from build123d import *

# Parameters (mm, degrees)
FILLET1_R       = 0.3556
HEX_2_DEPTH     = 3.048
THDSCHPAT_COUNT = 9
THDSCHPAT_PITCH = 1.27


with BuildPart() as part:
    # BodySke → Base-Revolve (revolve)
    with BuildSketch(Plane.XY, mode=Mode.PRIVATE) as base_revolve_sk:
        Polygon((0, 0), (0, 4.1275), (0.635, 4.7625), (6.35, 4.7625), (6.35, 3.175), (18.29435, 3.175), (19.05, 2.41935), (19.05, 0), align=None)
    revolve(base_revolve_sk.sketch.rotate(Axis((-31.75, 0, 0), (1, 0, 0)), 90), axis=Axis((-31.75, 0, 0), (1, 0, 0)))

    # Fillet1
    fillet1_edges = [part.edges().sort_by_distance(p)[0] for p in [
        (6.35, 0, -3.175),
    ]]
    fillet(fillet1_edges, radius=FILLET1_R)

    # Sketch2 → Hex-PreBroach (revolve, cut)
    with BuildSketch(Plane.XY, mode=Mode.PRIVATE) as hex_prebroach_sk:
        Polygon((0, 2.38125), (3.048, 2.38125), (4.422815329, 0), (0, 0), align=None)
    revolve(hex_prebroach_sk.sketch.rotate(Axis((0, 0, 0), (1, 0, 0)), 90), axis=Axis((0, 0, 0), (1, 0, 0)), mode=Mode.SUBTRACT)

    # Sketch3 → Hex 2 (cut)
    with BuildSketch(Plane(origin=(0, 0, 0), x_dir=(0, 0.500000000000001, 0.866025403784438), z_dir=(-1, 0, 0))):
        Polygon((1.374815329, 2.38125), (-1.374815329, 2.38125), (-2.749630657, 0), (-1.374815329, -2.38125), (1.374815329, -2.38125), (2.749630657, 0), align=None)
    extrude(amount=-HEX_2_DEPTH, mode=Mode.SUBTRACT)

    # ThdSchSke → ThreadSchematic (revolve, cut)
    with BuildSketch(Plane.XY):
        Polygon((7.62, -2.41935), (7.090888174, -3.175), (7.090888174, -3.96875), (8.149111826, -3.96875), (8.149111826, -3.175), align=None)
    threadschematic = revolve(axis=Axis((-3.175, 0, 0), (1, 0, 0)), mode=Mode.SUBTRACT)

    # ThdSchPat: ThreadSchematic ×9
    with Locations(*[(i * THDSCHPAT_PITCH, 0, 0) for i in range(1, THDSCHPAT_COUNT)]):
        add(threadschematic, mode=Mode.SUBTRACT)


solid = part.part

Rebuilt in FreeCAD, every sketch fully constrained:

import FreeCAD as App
import Part
import Sketcher
from FreeCAD import Vector
Q = App.Units.Quantity


def edges_at(feature, points):
    """Names of the edges that pass closest to the given points."""
    edges = feature.Shape.Edges
    near = lambda p: min(range(len(edges)), key=lambda i: edges[i].distToShape(Part.Vertex(*p))[0])
    return sorted({f"Edge{near(p) + 1}" for p in points})

doc = App.newDocument("Part")
body = doc.addObject("PartDesign::Body", "Body")

# Sketch on XY plane
sketch1 = body.newObject("Sketcher::SketchObject", "Sketch")
sketch1.AttachmentSupport = (doc.getObject("XY_Plane"), [""])
sketch1.MapMode = "FlatFace"
sketch1.addGeometry([
    Part.LineSegment(Vector(0, 4.1, 0), Vector(0, 0, 0)),  # 0
    Part.LineSegment(Vector(0, 0, 0), Vector(19.1, 0, 0)),  # 1
    Part.LineSegment(Vector(19.1, 0, 0), Vector(19.1, 2.4, 0)),  # 2
    Part.LineSegment(Vector(19.1, 2.4, 0), Vector(18.3, 3.2, 0)),  # 3
    Part.LineSegment(Vector(18.3, 3.2, 0), Vector(6.3, 3.2, 0)),  # 4
    Part.LineSegment(Vector(6.3, 3.2, 0), Vector(6.3, 4.8, 0)),  # 5
    Part.LineSegment(Vector(6.3, 4.8, 0), Vector(0.6, 4.8, 0)),  # 6
    Part.LineSegment(Vector(0.6, 4.8, 0), Vector(0, 4.1, 0)),  # 7
], False)
sketch1.addConstraint([
    Sketcher.Constraint("Coincident", 0, 2, 1, 1),
    Sketcher.Constraint("Coincident", 1, 2, 2, 1),
    Sketcher.Constraint("Coincident", 2, 2, 3, 1),
    Sketcher.Constraint("Coincident", 3, 2, 4, 1),
    Sketcher.Constraint("Coincident", 4, 2, 5, 1),
    Sketcher.Constraint("Coincident", 5, 2, 6, 1),
    Sketcher.Constraint("Coincident", 6, 2, 7, 1),
    Sketcher.Constraint("Coincident", 7, 2, 0, 1),
    Sketcher.Constraint("Vertical", 0),
    Sketcher.Constraint("Horizontal", 1),
    Sketcher.Constraint("Vertical", 2),
    Sketcher.Constraint("Horizontal", 4),
    Sketcher.Constraint("Vertical", 5),
    Sketcher.Constraint("Horizontal", 6),
    Sketcher.Constraint("Coincident", 0, 2, -1, 1),
    Sketcher.Constraint("Perpendicular", 3, 7),
    Sketcher.Constraint("Angle", 3, Q("135 deg")),
    Sketcher.Constraint("DistanceX", 1, 1, 1, 2, Q("0.75 in")),
    Sketcher.Constraint("DistanceX", 4, 2, 2, 2, Q("0.5 in")),
    Sketcher.Constraint("DistanceX", 6, 2, 6, 1, Q("0.225 in")),
    Sketcher.Constraint("DistanceY", 5, 1, 5, 2, Q("0.0625 in")),
    Sketcher.Constraint("DistanceY", 0, 2, 0, 1, Q("0.1625 in")),
    Sketcher.Constraint("DistanceX", 4, 2, 4, 1, 11.94435),
])
revolution = body.newObject("PartDesign::Revolution", "Revolution")
revolution.Profile = sketch1
revolution.ReferenceAxis = (sketch1, ["H_Axis"])
revolution.Angle = 360
doc.recompute()

fillet = body.newObject("PartDesign::Fillet", "Fillet")
fillet.Base = (revolution, edges_at(revolution, [(6.35, 0, -3.175)]))
fillet.Radius = Q("0.014 in")

# Sketch on XY plane
sketch2 = body.newObject("Sketcher::SketchObject", "Sketch001")
sketch2.AttachmentSupport = (doc.getObject("XY_Plane"), [""])
sketch2.MapMode = "FlatFace"
sketch2.addGeometry([
    Part.LineSegment(Vector(3, 2.4, 0), Vector(0, 2.4, 0)),
    Part.LineSegment(Vector(0, 2.4, 0), Vector(0, 0, 0)),
    Part.LineSegment(Vector(0, 0, 0), Vector(4.4, 0, 0)),
    Part.LineSegment(Vector(4.4, 0, 0), Vector(3, 2.4, 0)),
], False)
sketch2.addConstraint([
    Sketcher.Constraint("Coincident", 0, 2, 1, 1),
    Sketcher.Constraint("Coincident", 1, 2, 2, 1),
    Sketcher.Constraint("Coincident", 2, 2, 3, 1),
    Sketcher.Constraint("Coincident", 3, 2, 0, 1),
    Sketcher.Constraint("Horizontal", 0),
    Sketcher.Constraint("Vertical", 1),
    Sketcher.Constraint("Horizontal", 2),
    Sketcher.Constraint("Coincident", 1, 2, -1, 1),
    Sketcher.Constraint("Angle", 3, Q("120 deg")),
    Sketcher.Constraint("DistanceX", 0, 2, 0, 1, Q("0.12 in")),
    Sketcher.Constraint("DistanceY", 1, 2, 1, 1, Q("0.09375 in")),
])
groove = body.newObject("PartDesign::Groove", "Groove")
groove.Profile = sketch2
groove.ReferenceAxis = (sketch2, ["H_Axis"])
groove.Angle = 360

# Sketch on YZ plane
sketch3 = body.newObject("Sketcher::SketchObject", "Sketch002")
sketch3.AttachmentSupport = (doc.getObject("YZ_Plane"), [""])
sketch3.MapMode = "FlatFace"
sketch3.addGeometry([
    Part.LineSegment(Vector(2.7, 0, 0), Vector(1.4, -2.4, 0)),  # 0
    Part.LineSegment(Vector(1.4, -2.4, 0), Vector(-1.4, -2.4, 0)),  # 1
    Part.LineSegment(Vector(-1.4, -2.4, 0), Vector(-2.7, 0, 0)),  # 2
    Part.LineSegment(Vector(-2.7, 0, 0), Vector(-1.4, 2.4, 0)),  # 3
    Part.LineSegment(Vector(-1.4, 2.4, 0), Vector(1.4, 2.4, 0)),  # 4
    Part.LineSegment(Vector(1.4, 2.4, 0), Vector(2.7, 0, 0)),  # 5
], False)
sketch3.addConstraint([
    Sketcher.Constraint("Coincident", 0, 2, 1, 1),
    Sketcher.Constraint("Coincident", 1, 2, 2, 1),
    Sketcher.Constraint("Coincident", 2, 2, 3, 1),
    Sketcher.Constraint("Coincident", 3, 2, 4, 1),
    Sketcher.Constraint("Coincident", 4, 2, 5, 1),
    Sketcher.Constraint("Coincident", 5, 2, 0, 1),
    Sketcher.Constraint("Horizontal", 1),
    Sketcher.Constraint("Horizontal", 4),
    Sketcher.Constraint("Symmetric", 0, 2, 3, 2, -1, 1),
    Sketcher.Constraint("Symmetric", 2, 2, 5, 2, -1, 1),
    Sketcher.Constraint("PointOnObject", 2, 2, -1),
    Sketcher.Constraint("Parallel", 2, 5),
    Sketcher.Constraint("Vertical", 1, 2, 3, 2),
    Sketcher.Constraint("Angle", 0, Q("-120 deg")),
    Sketcher.Constraint("DistanceY", 0, 2, -1, 1, Q("0.09375 in")),
    Sketcher.Constraint("DistanceX", 1, 2, 1, 1, 2.749631),
])
pocket1 = body.newObject("PartDesign::Pocket", "Pocket")
pocket1.Profile = sketch3
pocket1.Length = Q("0.12 in")
pocket1.Reversed = True

# Sketch on XY plane
sketch4 = body.newObject("Sketcher::SketchObject", "Sketch003")
sketch4.AttachmentSupport = (doc.getObject("XY_Plane"), [""])
sketch4.MapMode = "FlatFace"
sketch4.addGeometry([
    Part.LineSegment(Vector(7.6, -2.4, 0), Vector(7.1, -3.2, 0)),  # 0
    Part.LineSegment(Vector(7.1, -3.2, 0), Vector(7.1, -4, 0)),  # 1
    Part.LineSegment(Vector(7.1, -4, 0), Vector(8.1, -4, 0)),  # 2
    Part.LineSegment(Vector(8.1, -4, 0), Vector(8.1, -3.2, 0)),  # 3
    Part.LineSegment(Vector(8.1, -3.2, 0), Vector(7.6, -2.4, 0)),  # 4
], False)
sketch4.addConstraint([
    Sketcher.Constraint("Coincident", 0, 2, 1, 1),
    Sketcher.Constraint("Coincident", 1, 2, 2, 1),
    Sketcher.Constraint("Coincident", 2, 2, 3, 1),
    Sketcher.Constraint("Coincident", 3, 2, 4, 1),
    Sketcher.Constraint("Coincident", 4, 2, 0, 1),
    Sketcher.Constraint("Vertical", 1),
    Sketcher.Constraint("Horizontal", 2),
    Sketcher.Constraint("Vertical", 3),
    Sketcher.Constraint("Horizontal", 0, 2, 3, 2),
    Sketcher.Constraint("Equal", 0, 4),
    Sketcher.Constraint("Angle", 0, Q("-125 deg")),
    Sketcher.Constraint("DistanceX", -1, 1, 4, 2, Q("0.3 in")),
    Sketcher.Constraint("DistanceY", 1, 2, 1, 1, Q("0.03125 in")),
    Sketcher.Constraint("DistanceY", 0, 2, -1, 1, Q("0.125 in")),
    Sketcher.Constraint("DistanceY", 1, 2, 4, 2, Q("0.061 in")),
])
groove2 = body.newObject("PartDesign::Groove", "Groove001")
groove2.Profile = sketch4
groove2.ReferenceAxis = (sketch4, ["H_Axis"])
groove2.Angle = 360
doc.recompute()

linearpattern = body.newObject("PartDesign::LinearPattern", "LinearPattern")
linearpattern.Originals = [groove2]
linearpattern.Direction = (doc.getObject("X_Axis"), [""])
linearpattern.Mode = "offset"
linearpattern.Offset = Q("0.05 in")
linearpattern.Occurrences = 9
body.Tip = linearpattern

doc.recompute()
